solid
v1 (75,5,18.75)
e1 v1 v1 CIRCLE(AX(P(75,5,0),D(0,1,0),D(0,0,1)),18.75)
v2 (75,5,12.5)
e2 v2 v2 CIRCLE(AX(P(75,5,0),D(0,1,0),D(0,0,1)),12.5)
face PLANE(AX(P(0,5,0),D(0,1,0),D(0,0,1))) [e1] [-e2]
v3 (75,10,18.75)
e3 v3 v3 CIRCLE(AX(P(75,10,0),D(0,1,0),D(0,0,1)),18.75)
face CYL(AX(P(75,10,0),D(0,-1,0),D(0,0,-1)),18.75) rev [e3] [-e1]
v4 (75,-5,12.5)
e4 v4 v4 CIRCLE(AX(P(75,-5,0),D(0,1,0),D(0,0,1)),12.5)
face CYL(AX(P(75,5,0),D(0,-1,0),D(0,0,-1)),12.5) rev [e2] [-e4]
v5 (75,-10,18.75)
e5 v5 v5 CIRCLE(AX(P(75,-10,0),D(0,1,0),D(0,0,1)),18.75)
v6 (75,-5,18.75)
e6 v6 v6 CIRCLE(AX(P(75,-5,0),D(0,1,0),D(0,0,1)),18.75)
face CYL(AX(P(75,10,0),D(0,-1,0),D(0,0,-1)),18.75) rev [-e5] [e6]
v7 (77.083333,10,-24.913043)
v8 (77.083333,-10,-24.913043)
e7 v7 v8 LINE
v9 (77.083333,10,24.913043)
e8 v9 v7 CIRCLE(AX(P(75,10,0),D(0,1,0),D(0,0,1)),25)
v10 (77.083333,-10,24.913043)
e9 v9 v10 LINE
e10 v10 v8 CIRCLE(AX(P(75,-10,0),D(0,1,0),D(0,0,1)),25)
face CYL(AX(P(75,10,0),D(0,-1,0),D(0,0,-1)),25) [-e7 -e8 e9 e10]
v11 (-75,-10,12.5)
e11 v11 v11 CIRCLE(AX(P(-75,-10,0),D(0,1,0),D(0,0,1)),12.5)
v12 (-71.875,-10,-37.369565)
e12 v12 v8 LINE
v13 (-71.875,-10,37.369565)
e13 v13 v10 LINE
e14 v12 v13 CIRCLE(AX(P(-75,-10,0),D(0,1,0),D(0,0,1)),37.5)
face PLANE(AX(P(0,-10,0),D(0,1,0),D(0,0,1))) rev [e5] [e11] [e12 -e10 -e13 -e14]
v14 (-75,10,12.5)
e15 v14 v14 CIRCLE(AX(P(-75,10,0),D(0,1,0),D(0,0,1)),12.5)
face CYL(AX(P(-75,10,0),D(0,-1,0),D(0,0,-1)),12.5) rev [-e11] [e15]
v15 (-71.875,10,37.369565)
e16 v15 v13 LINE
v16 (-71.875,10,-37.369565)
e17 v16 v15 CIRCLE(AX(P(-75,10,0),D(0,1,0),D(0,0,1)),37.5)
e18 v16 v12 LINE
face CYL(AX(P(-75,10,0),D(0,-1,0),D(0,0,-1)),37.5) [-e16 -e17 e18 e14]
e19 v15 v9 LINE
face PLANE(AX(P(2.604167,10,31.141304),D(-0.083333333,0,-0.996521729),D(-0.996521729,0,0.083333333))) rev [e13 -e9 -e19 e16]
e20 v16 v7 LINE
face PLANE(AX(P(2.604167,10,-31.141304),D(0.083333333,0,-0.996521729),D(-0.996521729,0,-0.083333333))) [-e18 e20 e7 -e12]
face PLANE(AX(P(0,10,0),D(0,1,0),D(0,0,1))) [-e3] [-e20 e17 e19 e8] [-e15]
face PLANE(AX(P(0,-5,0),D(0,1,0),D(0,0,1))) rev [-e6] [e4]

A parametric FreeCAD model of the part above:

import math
import FreeCAD as App
import Part
import Sketcher

V = App.Vector
Q = App.Units.Quantity

doc = App.newDocument("Part")
body = doc.addObject("PartDesign::Body", "Body")

# Sketch on XZ plane
sketch1 = body.newObject("Sketcher::SketchObject", "Sketch")
sketch1.AttachmentSupport = (doc.getObject("XZ_Plane"), [""])
sketch1.MapMode = "FlatFace"
sketch1.addGeometry([
    Part.LineSegment(V(-71.875, 37.369565, 0), V(77.083333, 24.913043, 0)),  # 0
    Part.ArcOfCircle(Part.Circle(V(75, 0, 0), V(0, 0, 1), 25), math.radians(-85.219808), math.radians(85.219808)),  # 1
    Part.LineSegment(V(77.083333, -24.913043, 0), V(-71.875, -37.369565, 0)),  # 2
    Part.ArcOfCircle(Part.Circle(V(-75, 0, 0), V(0, 0, 1), 37.5), math.radians(85.219808), math.radians(274.780192)),  # 3
    Part.Circle(V(-75, 0, 0), V(0, 0, 1), 12.5),  # 4
    Part.Circle(V(75, 0, 0), V(0, 0, 1), 18.75),  # 5
], False)
sketch1.addConstraint([
    Sketcher.Constraint("Tangent", 0, 2, 1, 2),
    Sketcher.Constraint("Tangent", 1, 1, 2, 1),
    Sketcher.Constraint("Tangent", 2, 2, 3, 2),
    Sketcher.Constraint("Tangent", 3, 1, 0, 1),
    Sketcher.Constraint("Coincident", 4, 3, 3, 3),
    Sketcher.Constraint("Coincident", 5, 3, 1, 3),
    Sketcher.Constraint("Symmetric", 1, 3, 3, 3, -1, 1),
    Sketcher.Constraint("PointOnObject", 1, 3, -1),
    Sketcher.Constraint("Diameter", 4, Q("25 mm")),
    Sketcher.Constraint("Radius", 1, Q("25 mm")),
    Sketcher.Constraint("Diameter", 5, Q("37.5 mm")),
    Sketcher.Constraint("Radius", 3, Q("37.5 mm")),
    Sketcher.Constraint("DistanceX", -1, 1, 1, 3, Q("75 mm")),
])
pad1 = body.newObject("PartDesign::Pad", "Pad")
pad1.Profile = sketch1
pad1.Length = 20
pad1.Midplane = True

# Sketch on XZ plane
sketch2 = body.newObject("Sketcher::SketchObject", "Sketch001")
sketch2.AttachmentSupport = (doc.getObject("XZ_Plane"), [""])
sketch2.MapMode = "FlatFace"
sketch2.addGeometry([
    Part.Circle(V(75, 0, 0), V(0, 0, 1), 18.75),
    Part.Circle(V(75, 0, 0), V(0, 0, 1), 12.5),
], False)
sketch2.addConstraint([
    Sketcher.Constraint("Coincident", 1, 3, 0, 3),
    Sketcher.Constraint("PointOnObject", 0, 3, -1),
    Sketcher.Constraint("Diameter", 1, Q("25 mm")),
    Sketcher.Constraint("Diameter", 0, Q("37.5 mm")),
    Sketcher.Constraint("DistanceX", -1, 1, 0, 3, Q("75 mm")),
])
pad2 = body.newObject("PartDesign::Pad", "Pad001")
pad2.Profile = sketch2
pad2.Length = 10
pad2.Midplane = True

doc.recompute()
